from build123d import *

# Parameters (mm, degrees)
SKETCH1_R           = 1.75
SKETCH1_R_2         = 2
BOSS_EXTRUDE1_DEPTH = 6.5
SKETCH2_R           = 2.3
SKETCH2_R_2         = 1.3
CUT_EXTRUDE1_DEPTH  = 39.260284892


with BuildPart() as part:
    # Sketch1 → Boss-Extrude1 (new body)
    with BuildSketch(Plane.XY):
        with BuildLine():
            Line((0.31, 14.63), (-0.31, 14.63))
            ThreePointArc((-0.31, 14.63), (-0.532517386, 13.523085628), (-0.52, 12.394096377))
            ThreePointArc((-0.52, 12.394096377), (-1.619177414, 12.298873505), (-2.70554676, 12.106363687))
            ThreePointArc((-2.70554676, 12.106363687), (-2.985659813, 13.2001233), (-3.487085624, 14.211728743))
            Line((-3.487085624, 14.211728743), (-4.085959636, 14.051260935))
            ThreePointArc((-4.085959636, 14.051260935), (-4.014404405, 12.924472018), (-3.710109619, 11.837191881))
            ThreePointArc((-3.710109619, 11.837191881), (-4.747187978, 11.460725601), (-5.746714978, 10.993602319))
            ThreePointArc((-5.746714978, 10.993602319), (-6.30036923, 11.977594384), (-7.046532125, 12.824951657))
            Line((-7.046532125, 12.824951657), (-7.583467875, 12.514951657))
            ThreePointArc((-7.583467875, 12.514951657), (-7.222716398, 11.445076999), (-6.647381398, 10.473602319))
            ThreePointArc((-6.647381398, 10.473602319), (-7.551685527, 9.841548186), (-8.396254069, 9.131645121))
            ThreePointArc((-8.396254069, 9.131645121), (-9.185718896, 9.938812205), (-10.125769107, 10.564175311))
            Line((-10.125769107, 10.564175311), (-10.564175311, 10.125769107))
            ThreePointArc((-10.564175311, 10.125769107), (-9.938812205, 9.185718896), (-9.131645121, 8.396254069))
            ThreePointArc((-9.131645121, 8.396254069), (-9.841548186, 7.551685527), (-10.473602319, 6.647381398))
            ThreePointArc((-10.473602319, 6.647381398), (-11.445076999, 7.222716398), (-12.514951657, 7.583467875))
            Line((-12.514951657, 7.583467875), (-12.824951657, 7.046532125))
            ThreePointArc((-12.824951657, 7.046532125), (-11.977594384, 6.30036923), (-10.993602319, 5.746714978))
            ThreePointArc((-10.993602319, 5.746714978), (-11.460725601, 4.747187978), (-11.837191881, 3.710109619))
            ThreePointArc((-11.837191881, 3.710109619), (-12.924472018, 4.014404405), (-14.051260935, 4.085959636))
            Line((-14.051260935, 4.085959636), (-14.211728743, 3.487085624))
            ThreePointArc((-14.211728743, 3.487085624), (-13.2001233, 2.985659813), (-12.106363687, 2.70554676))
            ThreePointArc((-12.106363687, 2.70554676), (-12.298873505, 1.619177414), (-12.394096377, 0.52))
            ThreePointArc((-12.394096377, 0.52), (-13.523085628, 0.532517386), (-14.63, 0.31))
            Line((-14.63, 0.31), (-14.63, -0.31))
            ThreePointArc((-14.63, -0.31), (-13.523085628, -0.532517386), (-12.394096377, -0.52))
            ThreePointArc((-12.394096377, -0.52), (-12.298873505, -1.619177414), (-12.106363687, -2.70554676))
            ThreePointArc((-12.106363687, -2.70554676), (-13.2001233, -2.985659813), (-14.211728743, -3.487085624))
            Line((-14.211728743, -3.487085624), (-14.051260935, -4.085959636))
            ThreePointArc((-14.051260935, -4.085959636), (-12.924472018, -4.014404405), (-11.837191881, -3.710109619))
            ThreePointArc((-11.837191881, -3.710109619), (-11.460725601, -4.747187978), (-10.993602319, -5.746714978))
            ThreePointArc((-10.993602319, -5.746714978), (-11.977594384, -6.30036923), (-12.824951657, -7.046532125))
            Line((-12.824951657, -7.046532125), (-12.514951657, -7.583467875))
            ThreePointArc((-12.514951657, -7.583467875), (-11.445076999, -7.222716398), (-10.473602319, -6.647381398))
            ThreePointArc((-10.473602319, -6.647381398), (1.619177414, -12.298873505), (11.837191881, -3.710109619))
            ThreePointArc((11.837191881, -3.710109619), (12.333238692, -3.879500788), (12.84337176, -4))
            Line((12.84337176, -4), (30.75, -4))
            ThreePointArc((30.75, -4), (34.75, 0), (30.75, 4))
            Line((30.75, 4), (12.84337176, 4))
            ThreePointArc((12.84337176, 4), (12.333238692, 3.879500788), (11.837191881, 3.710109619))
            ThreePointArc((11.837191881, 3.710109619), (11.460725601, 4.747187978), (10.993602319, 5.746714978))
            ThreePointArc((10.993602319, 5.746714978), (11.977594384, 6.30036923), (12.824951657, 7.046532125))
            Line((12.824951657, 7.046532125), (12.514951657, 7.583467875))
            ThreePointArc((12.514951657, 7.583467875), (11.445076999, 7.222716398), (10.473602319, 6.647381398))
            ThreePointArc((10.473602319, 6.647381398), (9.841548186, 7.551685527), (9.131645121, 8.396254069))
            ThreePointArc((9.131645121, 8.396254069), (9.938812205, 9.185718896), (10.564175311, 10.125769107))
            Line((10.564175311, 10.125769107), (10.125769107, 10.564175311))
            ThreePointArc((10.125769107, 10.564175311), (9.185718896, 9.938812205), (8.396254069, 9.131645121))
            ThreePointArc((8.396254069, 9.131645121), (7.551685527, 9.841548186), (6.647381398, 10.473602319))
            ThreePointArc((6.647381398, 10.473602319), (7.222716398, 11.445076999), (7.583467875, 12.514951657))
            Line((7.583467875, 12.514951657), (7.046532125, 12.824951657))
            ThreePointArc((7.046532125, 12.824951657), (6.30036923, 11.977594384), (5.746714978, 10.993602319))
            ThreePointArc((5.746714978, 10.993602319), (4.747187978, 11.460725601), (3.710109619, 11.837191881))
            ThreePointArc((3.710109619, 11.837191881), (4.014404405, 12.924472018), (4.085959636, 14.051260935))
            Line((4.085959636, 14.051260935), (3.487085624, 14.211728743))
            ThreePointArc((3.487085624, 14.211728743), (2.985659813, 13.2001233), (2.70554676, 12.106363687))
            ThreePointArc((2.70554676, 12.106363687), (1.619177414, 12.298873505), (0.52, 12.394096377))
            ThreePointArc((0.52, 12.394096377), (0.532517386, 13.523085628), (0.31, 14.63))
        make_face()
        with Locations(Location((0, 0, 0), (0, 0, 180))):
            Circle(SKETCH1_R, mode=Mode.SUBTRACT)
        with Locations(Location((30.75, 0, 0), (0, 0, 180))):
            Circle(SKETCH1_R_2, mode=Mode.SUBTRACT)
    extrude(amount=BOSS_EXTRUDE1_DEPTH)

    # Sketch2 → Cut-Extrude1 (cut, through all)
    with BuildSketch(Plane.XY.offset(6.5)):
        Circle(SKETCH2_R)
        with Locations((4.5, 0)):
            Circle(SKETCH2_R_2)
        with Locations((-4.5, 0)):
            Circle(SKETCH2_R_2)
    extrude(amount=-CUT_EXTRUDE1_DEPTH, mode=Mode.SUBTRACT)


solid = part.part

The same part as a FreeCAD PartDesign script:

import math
import FreeCAD as App
import Part
import Sketcher
Q = App.Units.Quantity

doc = App.newDocument("Part")
body = doc.addObject("PartDesign::Body", "Body")

sketch1 = body.newObject("Sketcher::SketchObject", "Sketch")
sketch1.AttachmentSupport = (doc.getObject("XY_Plane"), [""])
sketch1.MapMode = "FlatFace"
sketch1.addGeometry([
    Part.LineSegment(App.Vector(0.31, 14.63, 0), App.Vector(-0.31, 14.63, 0)),
    Part.ArcOfCircle(Part.Circle(App.Vector(4.843822, 13.01813, 0), App.Vector(0, 0, 1), 5.4), math.radians(162.632806), math.radians(186.636033)),
    Part.ArcOfCircle(Part.Circle(App.Vector(0, 0, 0), App.Vector(0, 0, 1), 12.405), math.radians(92.402462), math.radians(102.597538)),
    Part.ArcOfCircle(Part.Circle(App.Vector(-8.048112, 11.320875, 0), App.Vector(0, 0, 1), 5.4), math.radians(8.363967), math.radians(32.367194)),
    Part.LineSegment(App.Vector(-3.487086, 14.211729, 0), App.Vector(-4.08596, 14.051261, 0)),
    Part.ArcOfCircle(Part.Circle(App.Vector(1.309432, 13.828222, 0), App.Vector(0, 0, 1), 5.4), math.radians(177.632806), math.radians(201.636033)),
    Part.ArcOfCircle(Part.Circle(App.Vector(0, 0, 0), App.Vector(0, 0, 1), 12.405), math.radians(107.402462), math.radians(117.597538)),
    Part.ArcOfCircle(Part.Circle(App.Vector(-10.703938, 8.852121, 0), App.Vector(0, 0, 1), 5.4), math.radians(23.363967), math.radians(47.367194)),
    Part.LineSegment(App.Vector(-7.046532, 12.824952, 0), App.Vector(-7.583468, 12.514952, 0)),
    Part.ArcOfCircle(Part.Circle(App.Vector(-2.314193, 13.695942, 0), App.Vector(0, 0, 1), 5.4), math.radians(-167.367194), math.radians(-143.363967)),
    Part.ArcOfCircle(Part.Circle(App.Vector(0, 0, 0), App.Vector(0, 0, 1), 12.405), math.radians(122.402462), math.radians(132.597538)),
    Part.ArcOfCircle(Part.Circle(App.Vector(-12.630307, 5.780109, 0), App.Vector(0, 0, 1), 5.4), math.radians(38.363967), math.radians(62.367194)),
    Part.LineSegment(App.Vector(-10.125769, 10.564175, 0), App.Vector(-10.564175, 10.125769, 0)),
    Part.ArcOfCircle(Part.Circle(App.Vector(-5.780109, 12.630307, 0), App.Vector(0, 0, 1), 5.4), math.radians(-152.367194), math.radians(-128.363967)),
    Part.ArcOfCircle(Part.Circle(App.Vector(0, 0, 0), App.Vector(0, 0, 1), 12.405), math.radians(137.402462), math.radians(147.597538)),
    Part.ArcOfCircle(Part.Circle(App.Vector(-13.695942, 2.314193, 0), App.Vector(0, 0, 1), 5.4), math.radians(53.363967), math.radians(77.367194)),
    Part.LineSegment(App.Vector(-12.514952, 7.583468, 0), App.Vector(-12.824952, 7.046532, 0)),
    Part.ArcOfCircle(Part.Circle(App.Vector(-8.852121, 10.703938, 0), App.Vector(0, 0, 1), 5.4), math.radians(-137.367194), math.radians(-113.363967)),
    Part.ArcOfCircle(Part.Circle(App.Vector(0, 0, 0), App.Vector(0, 0, 1), 12.405), math.radians(152.402462), math.radians(162.597538)),
    Part.ArcOfCircle(Part.Circle(App.Vector(-13.828222, -1.309432, 0), App.Vector(0, 0, 1), 5.4), math.radians(68.363967), math.radians(92.367194)),
    Part.LineSegment(App.Vector(-14.051261, 4.08596, 0), App.Vector(-14.211729, 3.487086, 0)),
    Part.ArcOfCircle(Part.Circle(App.Vector(-11.320875, 8.048112, 0), App.Vector(0, 0, 1), 5.4), math.radians(-122.367194), math.radians(-98.363967)),
    Part.ArcOfCircle(Part.Circle(App.Vector(0, 0, 0), App.Vector(0, 0, 1), 12.405), math.radians(167.402462), math.radians(177.597538)),
    Part.ArcOfCircle(Part.Circle(App.Vector(-13.01813, -4.843822, 0), App.Vector(0, 0, 1), 5.4), math.radians(83.363967), math.radians(107.367194)),
    Part.LineSegment(App.Vector(-14.63, 0.31, 0), App.Vector(-14.63, -0.31, 0)),
    Part.ArcOfCircle(Part.Circle(App.Vector(-13.01813, 4.843822, 0), App.Vector(0, 0, 1), 5.4), math.radians(-107.367194), math.radians(-83.363967)),
    Part.ArcOfCircle(Part.Circle(App.Vector(0, 0, 0), App.Vector(0, 0, 1), 12.405), math.radians(-177.597538), math.radians(-167.402462)),
    Part.ArcOfCircle(Part.Circle(App.Vector(-11.320875, -8.048112, 0), App.Vector(0, 0, 1), 5.4), math.radians(98.363967), math.radians(122.367194)),
    Part.LineSegment(App.Vector(-14.211729, -3.487086, 0), App.Vector(-14.051261, -4.08596, 0)),
    Part.ArcOfCircle(Part.Circle(App.Vector(-13.828222, 1.309432, 0), App.Vector(0, 0, 1), 5.4), math.radians(-92.367194), math.radians(-68.363967)),
    Part.ArcOfCircle(Part.Circle(App.Vector(0, 0, 0), App.Vector(0, 0, 1), 12.405), math.radians(-162.597538), math.radians(-152.402462)),
    Part.ArcOfCircle(Part.Circle(App.Vector(-8.852121, -10.703938, 0), App.Vector(0, 0, 1), 5.4), math.radians(113.363967), math.radians(137.367194)),
    Part.LineSegment(App.Vector(-12.824952, -7.046532, 0), App.Vector(-12.514952, -7.583468, 0)),
    Part.ArcOfCircle(Part.Circle(App.Vector(-13.695942, -2.314193, 0), App.Vector(0, 0, 1), 5.4), math.radians(-77.367194), math.radians(-53.363967)),
    Part.ArcOfCircle(Part.Circle(App.Vector(0, 0, 0), App.Vector(0, 0, 1), 12.405), math.radians(-147.597538), math.radians(-17.402462)),
    Part.ArcOfCircle(Part.Circle(App.Vector(13.828222, 1.309432, 0), App.Vector(0, 0, 1), 5.4), math.radians(-111.636033), math.radians(-100.508396)),
    Part.LineSegment(App.Vector(12.843372, -4, 0), App.Vector(30.75, -4, 0)),
    Part.ArcOfCircle(Part.Circle(App.Vector(30.75, 0, 0), App.Vector(0, 0, 1), 4), math.radians(-90), math.radians(90)),
    Part.LineSegment(App.Vector(30.75, 4, 0), App.Vector(12.843372, 4, 0)),
    Part.ArcOfCircle(Part.Circle(App.Vector(13.828222, -1.309432, 0), App.Vector(0, 0, 1), 5.4), math.radians(100.508396), math.radians(111.636033)),
    Part.ArcOfCircle(Part.Circle(App.Vector(0, 0, 0), App.Vector(0, 0, 1), 12.405), math.radians(17.402462), math.radians(27.597538)),
    Part.ArcOfCircle(Part.Circle(App.Vector(8.852121, 10.703938, 0), App.Vector(0, 0, 1), 5.4), math.radians(-66.636033), math.radians(-42.632806)),
    Part.LineSegment(App.Vector(12.824952, 7.046532, 0), App.Vector(12.514952, 7.583468, 0)),
    Part.ArcOfCircle(Part.Circle(App.Vector(13.695942, 2.314193, 0), App.Vector(0, 0, 1), 5.4), math.radians(102.632806), math.radians(126.636033)),
    Part.ArcOfCircle(Part.Circle(App.Vector(0, 0, 0), App.Vector(0, 0, 1), 12.405), math.radians(32.402462), math.radians(42.597538)),
    Part.ArcOfCircle(Part.Circle(App.Vector(5.780109, 12.630307, 0), App.Vector(0, 0, 1), 5.4), math.radians(-51.636033), math.radians(-27.632806)),
    Part.LineSegment(App.Vector(10.564175, 10.125769, 0), App.Vector(10.125769, 10.564175, 0)),
    Part.ArcOfCircle(Part.Circle(App.Vector(12.630307, 5.780109, 0), App.Vector(0, 0, 1), 5.4), math.radians(117.632806), math.radians(141.636033)),
    Part.ArcOfCircle(Part.Circle(App.Vector(0, 0, 0), App.Vector(0, 0, 1), 12.405), math.radians(47.402462), math.radians(57.597538)),
    Part.ArcOfCircle(Part.Circle(App.Vector(2.314193, 13.695942, 0), App.Vector(0, 0, 1), 5.4), math.radians(-36.636033), math.radians(-12.632806)),
    Part.LineSegment(App.Vector(7.583468, 12.514952, 0), App.Vector(7.046532, 12.824952, 0)),
    Part.ArcOfCircle(Part.Circle(App.Vector(10.703938, 8.852121, 0), App.Vector(0, 0, 1), 5.4), math.radians(132.632806), math.radians(156.636033)),
    Part.ArcOfCircle(Part.Circle(App.Vector(0, 0, 0), App.Vector(0, 0, 1), 12.405), math.radians(62.402462), math.radians(72.597538)),
    Part.ArcOfCircle(Part.Circle(App.Vector(-1.309432, 13.828222, 0), App.Vector(0, 0, 1), 5.4), math.radians(-21.636033), math.radians(2.367194)),
    Part.LineSegment(App.Vector(4.08596, 14.051261, 0), App.Vector(3.487086, 14.211729, 0)),
    Part.ArcOfCircle(Part.Circle(App.Vector(8.048112, 11.320875, 0), App.Vector(0, 0, 1), 5.4), math.radians(147.632806), math.radians(171.636033)),
    Part.ArcOfCircle(Part.Circle(App.Vector(0, 0, 0), App.Vector(0, 0, 1), 12.405), math.radians(77.402462), math.radians(87.597538)),
    Part.ArcOfCircle(Part.Circle(App.Vector(-4.843822, 13.01813, 0), App.Vector(0, 0, 1), 5.4), math.radians(-6.636033), math.radians(17.367194)),
    Part.Circle(App.Vector(0, 0, 0), App.Vector(0, 0, 1), 1.75),
    Part.Circle(App.Vector(30.75, 0, 0), App.Vector(0, 0, 1), 2),
], False)
sketch1.addConstraint([
    Sketcher.Constraint("Coincident", 0, 2, 1, 1),
    Sketcher.Constraint("Coincident", 1, 2, 2, 1),
    Sketcher.Constraint("Coincident", 2, 2, 3, 1),
    Sketcher.Constraint("Coincident", 3, 2, 4, 1),
    Sketcher.Constraint("Coincident", 4, 2, 5, 1),
    Sketcher.Constraint("Coincident", 5, 2, 6, 1),
    Sketcher.Constraint("Coincident", 6, 2, 7, 1),
    Sketcher.Constraint("Coincident", 7, 2, 8, 1),
    Sketcher.Constraint("Coincident", 8, 2, 9, 1),
    Sketcher.Constraint("Coincident", 9, 2, 10, 1),
    Sketcher.Constraint("Coincident", 10, 2, 11, 1),
    Sketcher.Constraint("Coincident", 11, 2, 12, 1),
    Sketcher.Constraint("Coincident", 12, 2, 13, 1),
    Sketcher.Constraint("Coincident", 13, 2, 14, 1),
    Sketcher.Constraint("Coincident", 14, 2, 15, 1),
    Sketcher.Constraint("Coincident", 15, 2, 16, 1),
    Sketcher.Constraint("Coincident", 16, 2, 17, 1),
    Sketcher.Constraint("Coincident", 17, 2, 18, 1),
    Sketcher.Constraint("Coincident", 18, 2, 19, 1),
    Sketcher.Constraint("Coincident", 19, 2, 20, 1),
    Sketcher.Constraint("Coincident", 20, 2, 21, 1),
    Sketcher.Constraint("Coincident", 21, 2, 22, 1),
    Sketcher.Constraint("Coincident", 22, 2, 23, 1),
    Sketcher.Constraint("Coincident", 23, 2, 24, 1),
    Sketcher.Constraint("Coincident", 24, 2, 25, 1),
    Sketcher.Constraint("Coincident", 25, 2, 26, 1),
    Sketcher.Constraint("Coincident", 26, 2, 27, 1),
    Sketcher.Constraint("Coincident", 27, 2, 28, 1),
    Sketcher.Constraint("Coincident", 28, 2, 29, 1),
    Sketcher.Constraint("Coincident", 29, 2, 30, 1),
    Sketcher.Constraint("Coincident", 30, 2, 31, 1),
    Sketcher.Constraint("Coincident", 31, 2, 32, 1),
    Sketcher.Constraint("Coincident", 32, 2, 33, 1),
    Sketcher.Constraint("Coincident", 33, 2, 34, 1),
    Sketcher.Constraint("Coincident", 34, 2, 35, 1),
    Sketcher.Constraint("Coincident", 35, 2, 36, 1),
    Sketcher.Constraint("Tangent", 36, 2, 37, 1),
    Sketcher.Constraint("Tangent", 37, 2, 38, 1),
    Sketcher.Constraint("Coincident", 38, 2, 39, 1),
    Sketcher.Constraint("Coincident", 39, 2, 40, 1),
    Sketcher.Constraint("Coincident", 40, 2, 41, 1),
    Sketcher.Constraint("Coincident", 41, 2, 42, 1),
    Sketcher.Constraint("Coincident", 42, 2, 43, 1),
    Sketcher.Constraint("Coincident", 43, 2, 44, 1),
    Sketcher.Constraint("Coincident", 44, 2, 45, 1),
    Sketcher.Constraint("Coincident", 45, 2, 46, 1),
    Sketcher.Constraint("Coincident", 46, 2, 47, 1),
    Sketcher.Constraint("Coincident", 47, 2, 48, 1),
    Sketcher.Constraint("Coincident", 48, 2, 49, 1),
    Sketcher.Constraint("Coincident", 49, 2, 50, 1),
    Sketcher.Constraint("Coincident", 50, 2, 51, 1),
    Sketcher.Constraint("Coincident", 51, 2, 52, 1),
    Sketcher.Constraint("Coincident", 52, 2, 53, 1),
    Sketcher.Constraint("Coincident", 53, 2, 54, 1),
    Sketcher.Constraint("Coincident", 54, 2, 55, 1),
    Sketcher.Constraint("Coincident", 55, 2, 56, 1),
    Sketcher.Constraint("Coincident", 56, 2, 57, 1),
    Sketcher.Constraint("Coincident", 57, 2, 0, 1),
    Sketcher.Constraint("Horizontal", 0),
    Sketcher.Constraint("Vertical", 24),
    Sketcher.Constraint("Horizontal", 36),
    Sketcher.Constraint("Horizontal", 38),
    Sketcher.Constraint("Coincident", 2, 3, -1, 1),
    Sketcher.Constraint("Coincident", 6, 3, -1, 1),
    Sketcher.Constraint("Coincident", 10, 3, -1, 1),
    Sketcher.Constraint("Coincident", 14, 3, -1, 1),
    Sketcher.Constraint("Coincident", 18, 3, -1, 1),
    Sketcher.Constraint("Coincident", 22, 3, -1, 1),
    Sketcher.Constraint("Coincident", 26, 3, -1, 1),
    Sketcher.Constraint("Coincident", 30, 3, -1, 1),
    Sketcher.Constraint("Coincident", 34, 3, -1, 1),
    Sketcher.Constraint("Coincident", 40, 3, -1, 1),
    Sketcher.Constraint("Coincident", 44, 3, -1, 1),
    Sketcher.Constraint("Coincident", 48, 3, -1, 1),
    Sketcher.Constraint("Coincident", 52, 3, -1, 1),
    Sketcher.Constraint("Coincident", 56, 3, -1, 1),
    Sketcher.Constraint("Coincident", 58, 3, -1, 1),
    Sketcher.Constraint("Coincident", 59, 3, 37, 3),
    Sketcher.Constraint("Equal", 1, 3),
    Sketcher.Constraint("Equal", 3, 5),
    Sketcher.Constraint("Equal", 2, 6),
    Sketcher.Constraint("Equal", 5, 7),
    Sketcher.Constraint("Equal", 7, 9),
    Sketcher.Constraint("Equal", 6, 10),
    Sketcher.Constraint("Equal", 9, 11),
    Sketcher.Constraint("Equal", 11, 13),
    Sketcher.Constraint("Equal", 10, 14),
    Sketcher.Constraint("Equal", 13, 15),
    Sketcher.Constraint("Equal", 15, 17),
    Sketcher.Constraint("Equal", 14, 18),
    Sketcher.Constraint("Equal", 17, 19),
    Sketcher.Constraint("Equal", 19, 21),
    Sketcher.Constraint("Equal", 18, 22),
    Sketcher.Constraint("Equal", 21, 23),
    Sketcher.Constraint("Equal", 23, 25),
    Sketcher.Constraint("Equal", 22, 26),
    Sketcher.Constraint("Equal", 25, 27),
    Sketcher.Constraint("Equal", 27, 29),
    Sketcher.Constraint("Equal", 26, 30),
    Sketcher.Constraint("Equal", 29, 31),
    Sketcher.Constraint("Equal", 31, 33),
    Sketcher.Constraint("Equal", 30, 34),
    Sketcher.Constraint("Equal", 33, 35),
    Sketcher.Constraint("Equal", 35, 39),
    Sketcher.Constraint("Equal", 34, 40),
    Sketcher.Constraint("Equal", 39, 41),
    Sketcher.Constraint("Equal", 41, 43),
    Sketcher.Constraint("Equal", 40, 44),
    Sketcher.Constraint("Equal", 43, 45),
    Sketcher.Constraint("Equal", 45, 47),
    Sketcher.Constraint("Equal", 44, 48),
    Sketcher.Constraint("Equal", 47, 49),
    Sketcher.Constraint("Equal", 49, 51),
    Sketcher.Constraint("Equal", 48, 52),
    Sketcher.Constraint("Equal", 51, 53),
    Sketcher.Constraint("Equal", 53, 55),
    Sketcher.Constraint("Equal", 52, 56),
    Sketcher.Constraint("Equal", 55, 57),
    Sketcher.Constraint("Symmetric", 19, 3, 35, 3, -1, 1),
    Sketcher.Constraint("Symmetric", 29, 3, 39, 3, -1, 1),
    Sketcher.Constraint("Symmetric", 31, 3, 41, 3, -1, 1),
    Sketcher.Constraint("Symmetric", 33, 3, 43, 3, -1, 1),
    Sketcher.Constraint("Symmetric", 29, 3, 35, 3, -2),
    Sketcher.Constraint("Symmetric", 17, 3, 41, 3, -2),
    Sketcher.Constraint("Symmetric", 15, 3, 43, 3, -2),
    Sketcher.Constraint("Symmetric", 13, 3, 45, 3, -2),
    Sketcher.Constraint("Symmetric", 11, 3, 47, 3, -2),
    Sketcher.Constraint("Symmetric", 9, 3, 49, 3, -2),
    Sketcher.Constraint("Symmetric", 7, 3, 51, 3, -2),
    Sketcher.Constraint("Symmetric", 5, 3, 53, 3, -2),
    Sketcher.Constraint("Symmetric", 3, 3, 55, 3, -2),
    Sketcher.Constraint("Symmetric", 1, 3, 57, 3, -2),
    Sketcher.Constraint("Symmetric", 23, 3, 25, 3, -1),
    Sketcher.Constraint("Symmetric", 21, 3, 27, 3, -1),
    Sketcher.Constraint("PointOnObject", 37, 3, -1),
    Sketcher.Constraint("Perpendicular", 4, 28),
    Sketcher.Constraint("Perpendicular", 8, 32),
    Sketcher.Constraint("Parallel", 32, 42),
    Sketcher.Constraint("Perpendicular", 12, 46),
    Sketcher.Constraint("Perpendicular", 16, 50),
    Sketcher.Constraint("Perpendicular", 20, 54),
    Sketcher.Constraint("Horizontal", 16, 2, 41, 2),
    Sketcher.Constraint("Horizontal", 15, 2, 42, 2),
    Sketcher.Constraint("Horizontal", 12, 2, 45, 2),
    Sketcher.Constraint("Horizontal", 11, 2, 46, 2),
    Sketcher.Constraint("Horizontal", 8, 2, 49, 2),
    Sketcher.Constraint("Horizontal", 4, 2, 53, 2),
    Sketcher.Constraint("Horizontal", 3, 2, 54, 2),
    Sketcher.Constraint("Vertical", 20, 2, 27, 2),
    Sketcher.Constraint("Vertical", 16, 2, 31, 2),
    Sketcher.Constraint("Equal", 0, 24),
    Sketcher.Constraint("Equal", 4, 8),
    Sketcher.Constraint("Equal", 8, 12),
    Sketcher.Constraint("Equal", 12, 16),
    Sketcher.Constraint("Equal", 16, 20),
    Sketcher.Constraint("Diameter", 59, Q("4 mm")),
    Sketcher.Constraint("Radius", 37, Q("4 mm")),
    Sketcher.Constraint("Diameter", 58, Q("3.5 mm")),
    Sketcher.Constraint("Radius", 1, Q("5.4 mm")),
    Sketcher.Constraint("Angle", 4, Q("-165 deg")),
    Sketcher.Constraint("Angle", 8, Q("-150 deg")),
    Sketcher.Constraint("Radius", 2, Q("12.405 mm")),
    Sketcher.Constraint("DistanceX", 0, 2, 0, 1, Q("0.62 mm")),
    Sketcher.Constraint("Distance", 4, Q("0.62 mm")),
    Sketcher.Constraint("DistanceX", -1, 1, 37, 3, Q("30.75 mm")),
    Sketcher.Constraint("DistanceY", -1, 1, 0, 2, Q("14.63 mm")),
    Sketcher.Constraint("DistanceX", 1, 2, -1, 1, Q("0.52 mm")),
    Sketcher.Constraint("DistanceY", -1, 1, 22, 2, Q("0.52 mm")),
    Sketcher.Constraint("DistanceX", 23, 2, -1, 1, Q("14.63 mm")),
    Sketcher.Constraint("DistanceX", 36, 1, 36, 2, Q("17.906628 mm")),
    Sketcher.Constraint("DistanceY", -1, 1, 5, 3, Q("13.828222 mm")),
    Sketcher.Constraint("DistanceY", -1, 1, 7, 3, Q("8.852121 mm")),
    Sketcher.Constraint("DistanceY", -1, 1, 11, 3, Q("5.780109 mm")),
    Sketcher.Constraint("DistanceX", 13, 3, -1, 1, Q("5.780109 mm")),
    Sketcher.Constraint("DistanceX", 17, 3, -1, 1, Q("8.852121 mm")),
    Sketcher.Constraint("DistanceX", 19, 3, -1, 1, Q("13.828222 mm")),
    Sketcher.Constraint("DistanceY", -1, 1, 3, 2, Q("14.211729 mm")),
    Sketcher.Constraint("DistanceX", 4, 2, -1, 1, Q("4.08596 mm")),
    Sketcher.Constraint("DistanceY", -1, 1, 7, 2, Q("12.824952 mm")),
    Sketcher.Constraint("DistanceX", 9, 2, -1, 1, Q("6.647381 mm")),
    Sketcher.Constraint("DistanceX", 11, 2, -1, 1, Q("10.125769 mm")),
    Sketcher.Constraint("DistanceY", -1, 1, 12, 2, Q("10.125769 mm")),
    Sketcher.Constraint("DistanceY", -1, 1, 14, 2, Q("6.647381 mm")),
    Sketcher.Constraint("DistanceX", 15, 2, -1, 1, Q("12.514952 mm")),
    Sketcher.Constraint("DistanceX", 19, 2, -1, 1, Q("14.051261 mm")),
    Sketcher.Constraint("DistanceX", 3, 3, -1, 1, Q("8.048112 mm")),
    Sketcher.Constraint("DistanceX", 7, 3, -1, 1, Q("10.703938 mm")),
    Sketcher.Constraint("DistanceX", 15, 3, -1, 1, Q("13.695942 mm")),
    Sketcher.Constraint("DistanceX", 21, 3, -1, 1, Q("11.320875 mm")),
])
pad1 = body.newObject("PartDesign::Pad", "Pad")
pad1.Profile = sketch1
pad1.Length = 6.5

sketch2 = body.newObject("Sketcher::SketchObject", "Sketch001")
sketch2.AttachmentSupport = (doc.getObject("XY_Plane"), [""])
sketch2.MapMode = "FlatFace"
sketch2.AttachmentOffset = App.Placement(App.Vector(0, 0, 6.5), App.Rotation())
sketch2.addGeometry([
    Part.Circle(App.Vector(0, 0, 0), App.Vector(0, 0, 1), 2.3),
    Part.Circle(App.Vector(4.5, 0, 0), App.Vector(0, 0, 1), 1.3),
    Part.Circle(App.Vector(-4.5, 0, 0), App.Vector(0, 0, 1), 1.3),
], False)
sketch2.addConstraint([
    Sketcher.Constraint("Coincident", 0, 3, -1, 1),
    Sketcher.Constraint("Equal", 1, 2),
    Sketcher.Constraint("Symmetric", 1, 3, 2, 3, -1, 1),
    Sketcher.Constraint("PointOnObject", 1, 3, -1),
    Sketcher.Constraint("Diameter", 0, Q("4.6 mm")),
    Sketcher.Constraint("Diameter", 1, Q("2.6 mm")),
    Sketcher.Constraint("DistanceX", 2, 3, 1, 3, Q("9 mm")),
])
pocket1 = body.newObject("PartDesign::Pocket", "Pocket")
pocket1.Profile = sketch2
pocket1.Type = "ThroughAll"

doc.recompute()
